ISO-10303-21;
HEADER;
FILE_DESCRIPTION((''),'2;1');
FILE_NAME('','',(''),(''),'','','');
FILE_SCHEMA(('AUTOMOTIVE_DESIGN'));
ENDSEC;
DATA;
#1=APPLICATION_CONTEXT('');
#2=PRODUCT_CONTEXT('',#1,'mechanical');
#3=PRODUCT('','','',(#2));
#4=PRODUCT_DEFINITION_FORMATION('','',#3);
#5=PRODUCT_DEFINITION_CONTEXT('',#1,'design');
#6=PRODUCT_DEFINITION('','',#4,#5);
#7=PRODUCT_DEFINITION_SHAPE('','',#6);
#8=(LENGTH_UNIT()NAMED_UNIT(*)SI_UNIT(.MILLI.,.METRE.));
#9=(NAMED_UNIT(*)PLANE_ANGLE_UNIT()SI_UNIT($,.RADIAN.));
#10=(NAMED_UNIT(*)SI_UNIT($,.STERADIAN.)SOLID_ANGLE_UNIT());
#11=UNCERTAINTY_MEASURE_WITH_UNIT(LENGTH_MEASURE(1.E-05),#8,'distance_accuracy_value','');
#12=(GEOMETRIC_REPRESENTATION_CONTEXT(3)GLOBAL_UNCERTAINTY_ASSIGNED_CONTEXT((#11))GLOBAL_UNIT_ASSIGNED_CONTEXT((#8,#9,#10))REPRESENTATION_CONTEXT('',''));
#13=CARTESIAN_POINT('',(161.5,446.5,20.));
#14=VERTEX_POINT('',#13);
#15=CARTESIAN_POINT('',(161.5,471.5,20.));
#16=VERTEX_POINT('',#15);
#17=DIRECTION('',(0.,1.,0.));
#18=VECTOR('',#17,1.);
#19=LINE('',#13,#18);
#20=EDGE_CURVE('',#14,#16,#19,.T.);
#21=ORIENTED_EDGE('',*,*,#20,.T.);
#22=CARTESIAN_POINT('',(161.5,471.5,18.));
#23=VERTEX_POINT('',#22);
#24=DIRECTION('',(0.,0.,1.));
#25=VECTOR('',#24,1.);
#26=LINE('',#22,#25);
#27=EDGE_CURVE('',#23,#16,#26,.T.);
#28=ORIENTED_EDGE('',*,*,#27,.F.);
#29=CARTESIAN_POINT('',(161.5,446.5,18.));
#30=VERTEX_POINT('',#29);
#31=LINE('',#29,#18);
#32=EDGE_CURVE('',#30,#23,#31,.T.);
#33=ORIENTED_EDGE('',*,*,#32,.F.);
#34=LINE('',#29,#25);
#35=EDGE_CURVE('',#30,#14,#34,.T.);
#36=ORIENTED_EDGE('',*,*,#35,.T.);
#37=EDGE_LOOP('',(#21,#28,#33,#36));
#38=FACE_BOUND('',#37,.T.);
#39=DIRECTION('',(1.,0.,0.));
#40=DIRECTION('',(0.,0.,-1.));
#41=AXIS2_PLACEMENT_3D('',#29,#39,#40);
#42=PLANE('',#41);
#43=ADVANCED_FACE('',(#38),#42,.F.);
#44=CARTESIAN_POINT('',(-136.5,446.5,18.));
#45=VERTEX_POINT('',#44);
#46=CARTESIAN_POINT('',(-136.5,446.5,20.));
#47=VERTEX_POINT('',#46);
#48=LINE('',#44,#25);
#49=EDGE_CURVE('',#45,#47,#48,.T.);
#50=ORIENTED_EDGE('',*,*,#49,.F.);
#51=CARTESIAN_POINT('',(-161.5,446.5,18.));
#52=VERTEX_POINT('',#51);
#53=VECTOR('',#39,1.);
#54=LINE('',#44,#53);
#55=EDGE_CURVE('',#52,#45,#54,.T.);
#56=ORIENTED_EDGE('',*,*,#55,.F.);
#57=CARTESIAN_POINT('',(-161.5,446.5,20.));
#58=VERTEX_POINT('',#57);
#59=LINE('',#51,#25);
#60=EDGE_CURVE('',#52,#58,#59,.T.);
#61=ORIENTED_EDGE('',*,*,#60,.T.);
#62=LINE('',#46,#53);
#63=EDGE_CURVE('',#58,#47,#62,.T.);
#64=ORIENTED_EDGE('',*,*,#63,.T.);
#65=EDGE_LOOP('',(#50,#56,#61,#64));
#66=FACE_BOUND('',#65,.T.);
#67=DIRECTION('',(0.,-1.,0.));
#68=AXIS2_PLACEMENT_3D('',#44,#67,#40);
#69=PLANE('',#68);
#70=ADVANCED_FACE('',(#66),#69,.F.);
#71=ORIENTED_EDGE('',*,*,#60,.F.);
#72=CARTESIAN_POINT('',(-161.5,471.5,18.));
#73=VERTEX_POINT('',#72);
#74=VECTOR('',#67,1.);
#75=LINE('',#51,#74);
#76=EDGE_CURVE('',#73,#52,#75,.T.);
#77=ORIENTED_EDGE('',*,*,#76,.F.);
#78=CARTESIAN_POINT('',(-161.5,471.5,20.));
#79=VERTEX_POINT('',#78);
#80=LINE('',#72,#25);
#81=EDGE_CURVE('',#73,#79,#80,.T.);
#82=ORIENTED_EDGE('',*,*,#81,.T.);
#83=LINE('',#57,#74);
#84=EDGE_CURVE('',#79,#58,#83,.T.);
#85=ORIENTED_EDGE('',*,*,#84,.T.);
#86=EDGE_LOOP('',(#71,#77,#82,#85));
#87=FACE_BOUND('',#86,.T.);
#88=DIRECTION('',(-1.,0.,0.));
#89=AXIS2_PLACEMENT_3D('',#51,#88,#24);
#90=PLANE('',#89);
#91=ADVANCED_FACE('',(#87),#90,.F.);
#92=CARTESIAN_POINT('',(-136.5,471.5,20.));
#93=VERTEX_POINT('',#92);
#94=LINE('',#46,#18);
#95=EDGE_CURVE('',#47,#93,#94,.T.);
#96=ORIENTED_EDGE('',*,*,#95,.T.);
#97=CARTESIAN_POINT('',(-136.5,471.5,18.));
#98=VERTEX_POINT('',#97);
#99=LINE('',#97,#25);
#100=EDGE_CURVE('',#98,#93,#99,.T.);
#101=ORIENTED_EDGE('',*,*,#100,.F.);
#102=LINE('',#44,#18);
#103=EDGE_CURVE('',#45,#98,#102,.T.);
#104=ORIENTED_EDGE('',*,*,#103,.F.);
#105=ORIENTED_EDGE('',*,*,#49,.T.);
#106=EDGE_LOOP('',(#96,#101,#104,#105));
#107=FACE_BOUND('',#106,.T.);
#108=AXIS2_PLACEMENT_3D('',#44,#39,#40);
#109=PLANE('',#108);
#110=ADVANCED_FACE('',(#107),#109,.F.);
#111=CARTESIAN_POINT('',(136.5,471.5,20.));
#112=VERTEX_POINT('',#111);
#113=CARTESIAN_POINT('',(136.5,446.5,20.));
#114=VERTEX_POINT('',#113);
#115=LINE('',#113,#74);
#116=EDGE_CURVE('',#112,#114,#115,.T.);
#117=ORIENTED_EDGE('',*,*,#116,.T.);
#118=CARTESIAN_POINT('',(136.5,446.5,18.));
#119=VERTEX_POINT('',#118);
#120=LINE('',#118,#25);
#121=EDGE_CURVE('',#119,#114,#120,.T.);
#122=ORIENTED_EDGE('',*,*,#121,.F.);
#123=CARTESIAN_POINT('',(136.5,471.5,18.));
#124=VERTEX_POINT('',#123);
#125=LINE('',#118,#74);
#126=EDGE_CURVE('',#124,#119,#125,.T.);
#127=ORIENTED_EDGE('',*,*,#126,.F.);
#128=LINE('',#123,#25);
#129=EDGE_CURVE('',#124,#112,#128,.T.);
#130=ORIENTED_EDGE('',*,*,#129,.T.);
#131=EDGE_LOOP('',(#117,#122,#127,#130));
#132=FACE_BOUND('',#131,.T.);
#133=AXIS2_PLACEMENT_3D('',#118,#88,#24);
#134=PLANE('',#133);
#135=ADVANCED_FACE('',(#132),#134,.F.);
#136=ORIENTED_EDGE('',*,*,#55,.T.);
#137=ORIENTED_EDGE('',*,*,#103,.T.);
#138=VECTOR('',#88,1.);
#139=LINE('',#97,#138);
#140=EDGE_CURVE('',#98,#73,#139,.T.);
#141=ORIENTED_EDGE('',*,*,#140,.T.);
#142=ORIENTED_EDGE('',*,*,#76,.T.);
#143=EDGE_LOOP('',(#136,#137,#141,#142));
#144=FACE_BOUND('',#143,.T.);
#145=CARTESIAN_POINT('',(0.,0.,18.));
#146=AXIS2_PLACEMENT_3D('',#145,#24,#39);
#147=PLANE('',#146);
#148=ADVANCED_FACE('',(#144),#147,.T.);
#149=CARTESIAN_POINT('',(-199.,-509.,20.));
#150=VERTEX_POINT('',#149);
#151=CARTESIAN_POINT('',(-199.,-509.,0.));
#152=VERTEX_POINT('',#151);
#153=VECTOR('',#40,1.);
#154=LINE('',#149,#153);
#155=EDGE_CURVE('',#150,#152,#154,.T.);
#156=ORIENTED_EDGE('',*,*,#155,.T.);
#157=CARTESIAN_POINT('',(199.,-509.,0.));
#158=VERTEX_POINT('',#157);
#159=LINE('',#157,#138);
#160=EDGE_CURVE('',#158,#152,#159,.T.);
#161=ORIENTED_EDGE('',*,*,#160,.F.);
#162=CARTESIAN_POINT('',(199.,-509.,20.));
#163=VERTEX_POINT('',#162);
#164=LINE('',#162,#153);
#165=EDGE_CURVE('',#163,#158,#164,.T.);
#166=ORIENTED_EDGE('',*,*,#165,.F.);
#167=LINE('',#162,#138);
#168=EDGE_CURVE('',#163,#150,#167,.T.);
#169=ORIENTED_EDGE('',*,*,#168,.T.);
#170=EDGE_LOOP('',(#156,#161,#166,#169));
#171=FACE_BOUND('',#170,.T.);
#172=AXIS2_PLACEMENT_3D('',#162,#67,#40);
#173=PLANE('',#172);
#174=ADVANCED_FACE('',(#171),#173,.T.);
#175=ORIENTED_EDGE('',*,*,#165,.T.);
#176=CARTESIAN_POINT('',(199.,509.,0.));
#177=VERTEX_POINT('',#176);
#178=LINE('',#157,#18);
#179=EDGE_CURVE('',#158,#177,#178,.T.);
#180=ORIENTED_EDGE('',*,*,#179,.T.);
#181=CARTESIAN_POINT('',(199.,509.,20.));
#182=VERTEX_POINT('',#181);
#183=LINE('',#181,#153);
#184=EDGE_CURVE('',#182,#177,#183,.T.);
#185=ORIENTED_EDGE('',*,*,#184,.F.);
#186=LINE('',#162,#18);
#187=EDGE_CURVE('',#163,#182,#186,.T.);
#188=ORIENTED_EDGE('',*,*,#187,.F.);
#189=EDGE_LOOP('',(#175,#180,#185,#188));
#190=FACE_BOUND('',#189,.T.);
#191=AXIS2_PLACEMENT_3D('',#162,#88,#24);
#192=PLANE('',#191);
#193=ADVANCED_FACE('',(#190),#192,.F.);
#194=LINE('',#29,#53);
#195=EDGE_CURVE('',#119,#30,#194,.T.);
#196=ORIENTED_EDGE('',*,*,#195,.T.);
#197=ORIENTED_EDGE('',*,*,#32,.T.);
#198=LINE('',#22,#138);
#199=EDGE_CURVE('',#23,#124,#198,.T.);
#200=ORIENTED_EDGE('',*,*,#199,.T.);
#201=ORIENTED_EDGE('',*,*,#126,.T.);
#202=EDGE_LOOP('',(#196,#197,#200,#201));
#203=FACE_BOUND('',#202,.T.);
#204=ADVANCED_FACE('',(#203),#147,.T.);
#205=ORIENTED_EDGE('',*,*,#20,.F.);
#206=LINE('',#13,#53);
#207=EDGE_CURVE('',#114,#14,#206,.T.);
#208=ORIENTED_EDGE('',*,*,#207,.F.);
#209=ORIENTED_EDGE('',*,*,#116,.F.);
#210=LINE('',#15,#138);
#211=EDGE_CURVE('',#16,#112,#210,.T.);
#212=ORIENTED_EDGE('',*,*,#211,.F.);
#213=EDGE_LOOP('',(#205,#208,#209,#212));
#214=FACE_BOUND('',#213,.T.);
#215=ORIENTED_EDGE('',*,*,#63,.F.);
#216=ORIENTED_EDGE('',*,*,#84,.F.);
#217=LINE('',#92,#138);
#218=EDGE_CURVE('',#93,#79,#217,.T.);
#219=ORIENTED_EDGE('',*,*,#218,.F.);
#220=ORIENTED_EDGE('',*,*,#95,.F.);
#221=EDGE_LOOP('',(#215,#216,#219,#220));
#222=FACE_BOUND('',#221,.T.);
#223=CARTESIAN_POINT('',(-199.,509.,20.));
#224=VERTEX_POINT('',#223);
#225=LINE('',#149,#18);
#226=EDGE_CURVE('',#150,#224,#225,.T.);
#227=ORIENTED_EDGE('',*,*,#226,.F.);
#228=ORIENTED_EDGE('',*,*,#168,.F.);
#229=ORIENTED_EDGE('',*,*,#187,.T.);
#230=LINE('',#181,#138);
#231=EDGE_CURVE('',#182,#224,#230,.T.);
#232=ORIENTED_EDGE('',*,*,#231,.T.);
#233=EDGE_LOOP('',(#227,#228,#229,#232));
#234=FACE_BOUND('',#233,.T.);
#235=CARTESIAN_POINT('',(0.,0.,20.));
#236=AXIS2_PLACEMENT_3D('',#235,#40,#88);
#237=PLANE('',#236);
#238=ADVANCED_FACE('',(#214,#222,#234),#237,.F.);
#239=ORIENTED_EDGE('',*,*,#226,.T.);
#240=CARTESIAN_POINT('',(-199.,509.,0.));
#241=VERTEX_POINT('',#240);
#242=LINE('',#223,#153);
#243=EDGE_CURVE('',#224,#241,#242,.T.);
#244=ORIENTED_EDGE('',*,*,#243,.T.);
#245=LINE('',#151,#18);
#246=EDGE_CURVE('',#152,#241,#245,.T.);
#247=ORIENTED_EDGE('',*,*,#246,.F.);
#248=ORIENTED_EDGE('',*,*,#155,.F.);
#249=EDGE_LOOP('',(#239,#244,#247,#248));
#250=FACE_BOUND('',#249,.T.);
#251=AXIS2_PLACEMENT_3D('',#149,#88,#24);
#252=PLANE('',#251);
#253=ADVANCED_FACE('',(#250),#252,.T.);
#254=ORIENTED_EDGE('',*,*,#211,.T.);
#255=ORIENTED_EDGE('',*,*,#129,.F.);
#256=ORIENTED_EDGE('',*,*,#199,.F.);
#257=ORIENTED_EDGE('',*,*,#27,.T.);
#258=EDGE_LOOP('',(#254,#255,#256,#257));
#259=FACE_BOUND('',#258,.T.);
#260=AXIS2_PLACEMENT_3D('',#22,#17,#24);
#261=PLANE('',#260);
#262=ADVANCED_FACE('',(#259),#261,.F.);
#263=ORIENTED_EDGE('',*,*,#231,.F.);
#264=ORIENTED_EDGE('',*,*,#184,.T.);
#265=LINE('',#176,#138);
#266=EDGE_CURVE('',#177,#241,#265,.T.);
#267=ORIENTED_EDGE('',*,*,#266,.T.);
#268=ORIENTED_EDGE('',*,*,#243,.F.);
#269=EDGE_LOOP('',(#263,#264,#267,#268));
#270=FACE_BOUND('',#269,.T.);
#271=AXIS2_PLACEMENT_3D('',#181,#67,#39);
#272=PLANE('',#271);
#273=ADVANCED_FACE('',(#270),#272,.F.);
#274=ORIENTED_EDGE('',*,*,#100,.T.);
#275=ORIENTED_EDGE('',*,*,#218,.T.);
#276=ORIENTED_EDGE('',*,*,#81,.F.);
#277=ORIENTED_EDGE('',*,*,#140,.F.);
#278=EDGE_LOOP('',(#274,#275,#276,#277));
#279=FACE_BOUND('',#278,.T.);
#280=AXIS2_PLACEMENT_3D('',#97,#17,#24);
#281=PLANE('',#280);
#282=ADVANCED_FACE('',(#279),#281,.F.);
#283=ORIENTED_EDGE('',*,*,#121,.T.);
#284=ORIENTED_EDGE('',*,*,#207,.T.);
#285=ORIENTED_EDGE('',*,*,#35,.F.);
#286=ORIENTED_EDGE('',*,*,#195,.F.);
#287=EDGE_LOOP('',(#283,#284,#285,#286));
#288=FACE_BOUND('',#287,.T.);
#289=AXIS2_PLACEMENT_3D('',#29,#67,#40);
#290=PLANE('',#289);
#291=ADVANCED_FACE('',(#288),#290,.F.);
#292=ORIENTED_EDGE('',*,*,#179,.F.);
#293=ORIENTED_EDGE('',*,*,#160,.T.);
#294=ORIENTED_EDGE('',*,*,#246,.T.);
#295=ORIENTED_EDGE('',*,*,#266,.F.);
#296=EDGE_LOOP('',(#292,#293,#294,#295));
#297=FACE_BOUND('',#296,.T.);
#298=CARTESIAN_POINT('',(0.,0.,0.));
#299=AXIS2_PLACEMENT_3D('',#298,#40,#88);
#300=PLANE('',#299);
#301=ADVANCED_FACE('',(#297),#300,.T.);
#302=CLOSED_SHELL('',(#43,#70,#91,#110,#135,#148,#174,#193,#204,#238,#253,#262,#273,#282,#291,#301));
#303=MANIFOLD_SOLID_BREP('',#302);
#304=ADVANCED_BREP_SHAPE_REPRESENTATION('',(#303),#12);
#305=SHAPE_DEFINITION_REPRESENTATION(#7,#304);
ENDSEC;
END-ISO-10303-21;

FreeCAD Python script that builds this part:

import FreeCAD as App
import Part
import Sketcher

V = App.Vector


def add_polygon(sketch, points):
    """Adds a closed chain of lines whose ends are joined by coincident constraints."""
    first, n = sketch.GeometryCount, len(points)
    for a, b in zip(points, points[1:] + points[:1]):
        sketch.addGeometry(Part.LineSegment(App.Vector(*a, 0), App.Vector(*b, 0)), False)
    for i in range(n):
        sketch.addConstraint(Sketcher.Constraint("Coincident", first + i, 2, first + (i + 1) % n, 1))

doc = App.newDocument("Part")
body = doc.addObject("PartDesign::Body", "Body")

# Sketch on XY plane
sketch1 = doc.addObject("Sketcher::SketchObject", "Sketch")
body.addObject(sketch1)
sketch1.AttachmentSupport = (doc.XY_Plane, [""])
sketch1.MapMode = "FlatFace"
add_polygon(sketch1, [(-199, 509), (-199, -509), (199, -509), (199, 509)])  # lines 0-3
sketch1.addConstraint(Sketcher.Constraint("Vertical", 0))
sketch1.addConstraint(Sketcher.Constraint("Horizontal", 1))
sketch1.addConstraint(Sketcher.Constraint("Vertical", 2))
sketch1.addConstraint(Sketcher.Constraint("Horizontal", 3))
sketch1.addConstraint(Sketcher.Constraint("Symmetric", 0, 2, 2, 2, -1, 1))
sketch1.addConstraint(Sketcher.Constraint("DistanceX", 1, 1, 1, 2, 398.0))
sketch1.addConstraint(Sketcher.Constraint("DistanceY", 0, 2, 0, 1, 1018.0))
pad1 = doc.addObject("PartDesign::Pad", "Pad")
body.addObject(pad1)
pad1.Profile = sketch1
pad1.Length = 20

# Sketch on XY plane
sketch2 = doc.addObject("Sketcher::SketchObject", "Sketch001")
body.addObject(sketch2)
sketch2.AttachmentSupport = (doc.XY_Plane, [""])
sketch2.MapMode = "FlatFace"
sketch2.AttachmentOffset = App.Placement(V(0, 0, 20), App.Rotation())
add_polygon(sketch2, [(136, 472), (136, 446), (162, 446), (162, 472)])  # lines 0-3
add_polygon(sketch2, [(-162, 472), (-162, 446), (-136, 446), (-136, 472)])  # lines 4-7
sketch2.addConstraint(Sketcher.Constraint("Vertical", 0))
sketch2.addConstraint(Sketcher.Constraint("Horizontal", 1))
sketch2.addConstraint(Sketcher.Constraint("Vertical", 2))
sketch2.addConstraint(Sketcher.Constraint("Horizontal", 3))
sketch2.addConstraint(Sketcher.Constraint("Vertical", 4))
sketch2.addConstraint(Sketcher.Constraint("Horizontal", 5))
sketch2.addConstraint(Sketcher.Constraint("Vertical", 6))
sketch2.addConstraint(Sketcher.Constraint("Horizontal", 7))
sketch2.addConstraint(Sketcher.Constraint("Symmetric", 1, 2, 4, 2, -2))
sketch2.addConstraint(Sketcher.Constraint("Symmetric", 3, 2, 6, 2, -2))
sketch2.addConstraint(Sketcher.Constraint("Equal", 7, 0))
sketch2.addConstraint(Sketcher.Constraint("DistanceX", 1, 1, 1, 2, 25.0))
sketch2.addConstraint(Sketcher.Constraint("DistanceX", 4, 2, 0, 2, 298.0))
sketch2.addConstraint(Sketcher.Constraint("DistanceY", -1, 1, 0, 2, 446.5))
pocket1 = doc.addObject("PartDesign::Pocket", "Pocket")
body.addObject(pocket1)
pocket1.Profile = sketch2
pocket1.Length = 2

doc.recompute()
